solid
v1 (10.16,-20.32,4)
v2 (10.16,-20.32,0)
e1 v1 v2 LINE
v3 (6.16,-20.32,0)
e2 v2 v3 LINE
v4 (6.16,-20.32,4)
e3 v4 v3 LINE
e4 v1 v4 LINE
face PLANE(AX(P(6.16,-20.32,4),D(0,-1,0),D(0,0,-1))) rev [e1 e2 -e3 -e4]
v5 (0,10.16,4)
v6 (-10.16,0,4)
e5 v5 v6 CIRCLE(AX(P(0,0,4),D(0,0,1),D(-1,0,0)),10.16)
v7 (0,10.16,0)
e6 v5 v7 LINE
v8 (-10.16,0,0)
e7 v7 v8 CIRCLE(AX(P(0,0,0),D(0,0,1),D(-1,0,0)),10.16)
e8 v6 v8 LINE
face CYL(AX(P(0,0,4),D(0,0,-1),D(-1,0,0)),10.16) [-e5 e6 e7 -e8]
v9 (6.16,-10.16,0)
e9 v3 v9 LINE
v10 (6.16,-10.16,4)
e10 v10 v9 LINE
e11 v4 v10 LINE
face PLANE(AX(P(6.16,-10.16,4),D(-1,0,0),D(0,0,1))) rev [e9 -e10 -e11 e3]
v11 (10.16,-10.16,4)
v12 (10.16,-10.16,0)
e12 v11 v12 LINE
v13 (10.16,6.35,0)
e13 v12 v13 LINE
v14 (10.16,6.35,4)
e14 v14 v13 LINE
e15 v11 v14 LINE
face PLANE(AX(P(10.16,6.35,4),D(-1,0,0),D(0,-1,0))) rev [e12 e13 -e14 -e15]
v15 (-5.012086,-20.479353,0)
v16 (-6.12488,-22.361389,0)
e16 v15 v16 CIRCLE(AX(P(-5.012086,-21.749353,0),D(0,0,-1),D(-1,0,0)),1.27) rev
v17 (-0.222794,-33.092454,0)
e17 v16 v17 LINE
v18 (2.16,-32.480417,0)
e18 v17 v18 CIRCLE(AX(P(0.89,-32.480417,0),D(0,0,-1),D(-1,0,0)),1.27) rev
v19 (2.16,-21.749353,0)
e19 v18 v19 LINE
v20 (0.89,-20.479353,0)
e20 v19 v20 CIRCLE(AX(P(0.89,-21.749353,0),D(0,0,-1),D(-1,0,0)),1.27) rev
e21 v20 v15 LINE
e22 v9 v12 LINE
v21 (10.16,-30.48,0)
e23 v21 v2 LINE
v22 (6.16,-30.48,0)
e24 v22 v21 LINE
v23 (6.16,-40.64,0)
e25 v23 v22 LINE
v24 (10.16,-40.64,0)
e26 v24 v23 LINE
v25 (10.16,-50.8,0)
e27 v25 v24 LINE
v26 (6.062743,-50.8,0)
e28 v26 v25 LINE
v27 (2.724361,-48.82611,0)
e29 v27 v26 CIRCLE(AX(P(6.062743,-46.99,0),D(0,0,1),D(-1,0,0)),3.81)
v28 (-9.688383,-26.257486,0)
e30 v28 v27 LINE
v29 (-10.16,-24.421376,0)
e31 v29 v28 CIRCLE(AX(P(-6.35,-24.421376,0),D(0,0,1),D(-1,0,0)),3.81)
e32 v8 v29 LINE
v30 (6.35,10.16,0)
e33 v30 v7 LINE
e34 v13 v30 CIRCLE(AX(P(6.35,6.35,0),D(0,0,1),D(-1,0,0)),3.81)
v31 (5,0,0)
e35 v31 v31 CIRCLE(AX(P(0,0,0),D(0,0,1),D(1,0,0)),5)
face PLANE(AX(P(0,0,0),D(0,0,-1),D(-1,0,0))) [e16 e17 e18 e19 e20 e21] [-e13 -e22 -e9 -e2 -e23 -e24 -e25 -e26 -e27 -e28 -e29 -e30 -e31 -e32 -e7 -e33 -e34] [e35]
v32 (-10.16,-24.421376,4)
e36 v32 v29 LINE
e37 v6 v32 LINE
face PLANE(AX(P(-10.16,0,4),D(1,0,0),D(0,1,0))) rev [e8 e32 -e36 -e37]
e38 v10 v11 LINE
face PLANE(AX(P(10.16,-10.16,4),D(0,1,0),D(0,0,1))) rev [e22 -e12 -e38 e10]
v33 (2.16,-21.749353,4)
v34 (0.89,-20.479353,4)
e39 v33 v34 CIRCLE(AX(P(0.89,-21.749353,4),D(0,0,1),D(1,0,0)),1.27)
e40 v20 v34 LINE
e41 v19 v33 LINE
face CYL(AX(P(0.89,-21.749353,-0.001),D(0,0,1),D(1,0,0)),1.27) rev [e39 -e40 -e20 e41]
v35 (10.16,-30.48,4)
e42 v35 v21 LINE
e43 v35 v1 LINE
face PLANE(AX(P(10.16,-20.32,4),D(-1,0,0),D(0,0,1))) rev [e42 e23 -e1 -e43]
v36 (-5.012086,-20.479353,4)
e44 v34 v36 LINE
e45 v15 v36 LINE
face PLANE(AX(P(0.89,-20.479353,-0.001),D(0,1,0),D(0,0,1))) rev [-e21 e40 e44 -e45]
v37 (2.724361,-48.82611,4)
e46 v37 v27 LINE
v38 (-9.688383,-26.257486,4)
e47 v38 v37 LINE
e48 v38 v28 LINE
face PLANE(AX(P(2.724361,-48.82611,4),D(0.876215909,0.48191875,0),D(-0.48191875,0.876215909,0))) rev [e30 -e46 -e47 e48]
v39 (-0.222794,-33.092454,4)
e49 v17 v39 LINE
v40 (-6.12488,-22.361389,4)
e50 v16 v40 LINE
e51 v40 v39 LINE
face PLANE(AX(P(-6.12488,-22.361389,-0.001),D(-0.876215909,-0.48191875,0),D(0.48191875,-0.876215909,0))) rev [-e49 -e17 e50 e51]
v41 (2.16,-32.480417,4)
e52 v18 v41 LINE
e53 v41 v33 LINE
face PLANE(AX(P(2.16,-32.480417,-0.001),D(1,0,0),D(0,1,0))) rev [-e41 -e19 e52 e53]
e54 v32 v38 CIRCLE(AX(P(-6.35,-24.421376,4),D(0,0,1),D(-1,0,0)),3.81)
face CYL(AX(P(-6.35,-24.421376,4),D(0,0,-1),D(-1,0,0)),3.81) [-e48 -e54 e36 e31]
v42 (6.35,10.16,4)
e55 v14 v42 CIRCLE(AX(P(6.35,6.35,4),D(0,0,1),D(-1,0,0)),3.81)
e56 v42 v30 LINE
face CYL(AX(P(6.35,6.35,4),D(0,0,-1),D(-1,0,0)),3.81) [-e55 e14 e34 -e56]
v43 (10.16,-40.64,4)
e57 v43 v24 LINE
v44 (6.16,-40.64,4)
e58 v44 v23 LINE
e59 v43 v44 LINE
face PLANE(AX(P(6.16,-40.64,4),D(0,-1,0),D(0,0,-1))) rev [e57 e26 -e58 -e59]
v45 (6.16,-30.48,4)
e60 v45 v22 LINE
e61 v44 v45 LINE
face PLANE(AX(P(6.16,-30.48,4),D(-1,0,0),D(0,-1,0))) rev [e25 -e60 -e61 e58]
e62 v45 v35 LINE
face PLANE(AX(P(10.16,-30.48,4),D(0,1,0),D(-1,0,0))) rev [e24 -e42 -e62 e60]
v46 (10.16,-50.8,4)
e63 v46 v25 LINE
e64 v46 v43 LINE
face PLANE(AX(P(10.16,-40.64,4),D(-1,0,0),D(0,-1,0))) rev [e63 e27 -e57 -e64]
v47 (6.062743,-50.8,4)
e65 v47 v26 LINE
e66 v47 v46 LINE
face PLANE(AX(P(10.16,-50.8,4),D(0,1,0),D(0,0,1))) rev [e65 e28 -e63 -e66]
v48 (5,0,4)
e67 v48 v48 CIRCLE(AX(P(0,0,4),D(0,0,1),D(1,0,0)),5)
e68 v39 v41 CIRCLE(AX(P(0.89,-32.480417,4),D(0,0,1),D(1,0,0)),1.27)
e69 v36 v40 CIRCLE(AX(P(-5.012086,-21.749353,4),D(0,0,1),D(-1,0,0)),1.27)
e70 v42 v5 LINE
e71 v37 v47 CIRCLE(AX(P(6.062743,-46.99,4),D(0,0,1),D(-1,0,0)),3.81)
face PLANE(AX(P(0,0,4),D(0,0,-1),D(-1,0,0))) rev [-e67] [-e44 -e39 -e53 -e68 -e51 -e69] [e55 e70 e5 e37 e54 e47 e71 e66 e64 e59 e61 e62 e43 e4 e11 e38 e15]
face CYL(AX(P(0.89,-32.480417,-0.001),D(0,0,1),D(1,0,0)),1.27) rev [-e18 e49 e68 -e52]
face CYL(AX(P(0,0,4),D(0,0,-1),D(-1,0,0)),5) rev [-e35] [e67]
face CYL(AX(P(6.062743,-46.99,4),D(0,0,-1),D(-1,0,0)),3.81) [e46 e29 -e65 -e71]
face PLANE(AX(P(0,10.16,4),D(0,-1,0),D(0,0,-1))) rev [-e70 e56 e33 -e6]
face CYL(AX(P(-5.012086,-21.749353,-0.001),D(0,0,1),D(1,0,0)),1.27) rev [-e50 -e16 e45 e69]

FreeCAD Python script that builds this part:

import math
import FreeCAD as App
import Part
import Sketcher
Q = App.Units.Quantity

doc = App.newDocument("Part")
body = doc.addObject("PartDesign::Body", "Body")

sketch1 = body.newObject("Sketcher::SketchObject", "Sketch")
sketch1.AttachmentSupport = (doc.getObject("XY_Plane"), [""])
sketch1.MapMode = "FlatFace"
sketch1.addGeometry(Part.LineSegment(App.Vector(10.2, -10.2, 0), App.Vector(10.2, 6.3, 0)), False)
sketch1.addGeometry(Part.ArcOfCircle(Part.Circle(App.Vector(6.3, 6.3, 0), App.Vector(0, 0, 1), 3.8), math.radians(0), math.radians(90)), False)
sketch1.addGeometry(Part.LineSegment(App.Vector(6.3, 10.2, 0), App.Vector(0, 10.2, 0)), False)
sketch1.addGeometry(Part.ArcOfCircle(Part.Circle(App.Vector(0, 0, 0), App.Vector(0, 0, 1), 10.2), math.radians(90), math.radians(180)), False)
sketch1.addGeometry(Part.LineSegment(App.Vector(-10.2, 0, 0), App.Vector(-10.2, -24.4, 0)), False)
sketch1.addGeometry(Part.ArcOfCircle(Part.Circle(App.Vector(-6.4, -24.4, 0), App.Vector(0, 0, 1), 3.8), math.radians(180), math.radians(209)), False)
sketch1.addGeometry(Part.LineSegment(App.Vector(-9.7, -26.3, 0), App.Vector(2.7, -48.8, 0)), False)
sketch1.addGeometry(Part.ArcOfCircle(Part.Circle(App.Vector(6.1, -47, 0), App.Vector(0, 0, 1), 3.8), math.radians(-151), math.radians(-90)), False)
sketch1.addGeometry(Part.LineSegment(App.Vector(6.1, -50.8, 0), App.Vector(10.2, -50.8, 0)), False)
sketch1.addGeometry(Part.LineSegment(App.Vector(10.2, -50.8, 0), App.Vector(10.2, -40.6, 0)), False)
sketch1.addGeometry(Part.LineSegment(App.Vector(10.2, -40.6, 0), App.Vector(6.2, -40.6, 0)), False)
sketch1.addGeometry(Part.LineSegment(App.Vector(6.2, -40.6, 0), App.Vector(6.2, -30.5, 0)), False)
sketch1.addGeometry(Part.LineSegment(App.Vector(6.2, -30.5, 0), App.Vector(10.2, -30.5, 0)), False)
sketch1.addGeometry(Part.LineSegment(App.Vector(10.2, -30.5, 0), App.Vector(10.2, -20.3, 0)), False)
sketch1.addGeometry(Part.LineSegment(App.Vector(10.2, -20.3, 0), App.Vector(6.2, -20.3, 0)), False)
sketch1.addGeometry(Part.LineSegment(App.Vector(6.2, -20.3, 0), App.Vector(6.2, -10.2, 0)), False)
sketch1.addGeometry(Part.LineSegment(App.Vector(6.2, -10.2, 0), App.Vector(10.2, -10.2, 0)), False)
sketch1.addGeometry(Part.Circle(App.Vector(0, 0, 0), App.Vector(0, 0, 1), 5), False)
sketch1.addConstraint(Sketcher.Constraint("Tangent", 0, 2, 1, 1))
sketch1.addConstraint(Sketcher.Constraint("Tangent", 1, 2, 2, 1))
sketch1.addConstraint(Sketcher.Constraint("Tangent", 2, 2, 3, 1))
sketch1.addConstraint(Sketcher.Constraint("Tangent", 3, 2, 4, 1))
sketch1.addConstraint(Sketcher.Constraint("Tangent", 4, 2, 5, 1))
sketch1.addConstraint(Sketcher.Constraint("Tangent", 5, 2, 6, 1))
sketch1.addConstraint(Sketcher.Constraint("Tangent", 6, 2, 7, 1))
sketch1.addConstraint(Sketcher.Constraint("Tangent", 7, 2, 8, 1))
sketch1.addConstraint(Sketcher.Constraint("Coincident", 8, 2, 9, 1))
sketch1.addConstraint(Sketcher.Constraint("Coincident", 9, 2, 10, 1))
sketch1.addConstraint(Sketcher.Constraint("Coincident", 10, 2, 11, 1))
sketch1.addConstraint(Sketcher.Constraint("Coincident", 11, 2, 12, 1))
sketch1.addConstraint(Sketcher.Constraint("Coincident", 12, 2, 13, 1))
sketch1.addConstraint(Sketcher.Constraint("Coincident", 13, 2, 14, 1))
sketch1.addConstraint(Sketcher.Constraint("Coincident", 14, 2, 15, 1))
sketch1.addConstraint(Sketcher.Constraint("Coincident", 15, 2, 16, 1))
sketch1.addConstraint(Sketcher.Constraint("Coincident", 16, 2, 0, 1))
sketch1.addConstraint(Sketcher.Constraint("Vertical", 0))
sketch1.addConstraint(Sketcher.Constraint("Horizontal", 2))
sketch1.addConstraint(Sketcher.Constraint("Vertical", 4))
sketch1.addConstraint(Sketcher.Constraint("Horizontal", 8))
sketch1.addConstraint(Sketcher.Constraint("Vertical", 9))
sketch1.addConstraint(Sketcher.Constraint("Horizontal", 10))
sketch1.addConstraint(Sketcher.Constraint("Vertical", 11))
sketch1.addConstraint(Sketcher.Constraint("Horizontal", 12))
sketch1.addConstraint(Sketcher.Constraint("Vertical", 13))
sketch1.addConstraint(Sketcher.Constraint("Horizontal", 14))
sketch1.addConstraint(Sketcher.Constraint("Vertical", 15))
sketch1.addConstraint(Sketcher.Constraint("Horizontal", 16))
sketch1.addConstraint(Sketcher.Constraint("Coincident", 3, 3, -1, 1))
sketch1.addConstraint(Sketcher.Constraint("Coincident", 17, 3, -1, 1))
sketch1.addConstraint(Sketcher.Constraint("Equal", 1, 5))
sketch1.addConstraint(Sketcher.Constraint("Equal", 5, 7))
sketch1.addConstraint(Sketcher.Constraint("Vertical", 0, 2, 8, 2))
sketch1.addConstraint(Sketcher.Constraint("Vertical", 9, 2, 12, 2))
sketch1.addConstraint(Sketcher.Constraint("Vertical", 11, 2, 14, 2))
sketch1.addConstraint(Sketcher.Constraint("Equal", 9, 11))
sketch1.addConstraint(Sketcher.Constraint("Equal", 11, 13))
sketch1.addConstraint(Sketcher.Constraint("Equal", 13, 15))
sketch1.addConstraint(Sketcher.Constraint("Radius", 3, Q("0.4 in")))
sketch1.addConstraint(Sketcher.Constraint("Radius", 1, Q("0.15 in")))
sketch1.addConstraint(Sketcher.Constraint("DistanceY", 9, 1, 9, 2, Q("0.4 in")))
sketch1.addConstraint(Sketcher.Constraint("DistanceY", 7, 2, -1, 1, Q("2 in")))
sketch1.addConstraint(Sketcher.Constraint("DistanceX", 2, 2, 2, 1, Q("0.25 in")))
sketch1.addConstraint(Sketcher.Constraint("Diameter", 17, Q("10 mm")))
sketch1.addConstraint(Sketcher.Constraint("DistanceX", 10, 2, 10, 1, Q("4 mm")))
sketch1.addConstraint(Sketcher.Constraint("Distance", 6, Q("25.756921 mm")))
sketch1.addConstraint(Sketcher.Constraint("DistanceX", 8, 1, 8, 2, Q("4.097257 mm")))
pad1 = body.newObject("PartDesign::Pad", "Pad")
pad1.Profile = sketch1
pad1.Length = 4

sketch2 = body.newObject("Sketcher::SketchObject", "Sketch001")
sketch2.AttachmentSupport = (doc.getObject("XY_Plane"), [""])
sketch2.MapMode = "FlatFace"
sketch2.AttachmentOffset = App.Placement(App.Vector(0, 0, 4), App.Rotation())
sketch2.addGeometry(Part.LineSegment(App.Vector(-6.1, -22.4, 0), App.Vector(-0.2, -33.1, 0)), False)
sketch2.addGeometry(Part.ArcOfCircle(Part.Circle(App.Vector(0.9, -32.5, 0), App.Vector(0, 0, 1), 1.3), math.radians(-151), math.radians(0)), False)
sketch2.addGeometry(Part.LineSegment(App.Vector(2.2, -32.5, 0), App.Vector(2.2, -21.7, 0)), False)
sketch2.addGeometry(Part.ArcOfCircle(Part.Circle(App.Vector(0.9, -21.7, 0), App.Vector(0, 0, 1), 1.3), math.radians(0), math.radians(90)), False)
sketch2.addGeometry(Part.LineSegment(App.Vector(0.9, -20.5, 0), App.Vector(-5, -20.5, 0)), False)
sketch2.addGeometry(Part.ArcOfCircle(Part.Circle(App.Vector(-5, -21.7, 0), App.Vector(0, 0, 1), 1.3), math.radians(90), math.radians(209)), False)
sketch2.addConstraint(Sketcher.Constraint("Tangent", 0, 2, 1, 1))
sketch2.addConstraint(Sketcher.Constraint("Tangent", 1, 2, 2, 1))
sketch2.addConstraint(Sketcher.Constraint("Tangent", 2, 2, 3, 1))
sketch2.addConstraint(Sketcher.Constraint("Tangent", 3, 2, 4, 1))
sketch2.addConstraint(Sketcher.Constraint("Tangent", 4, 2, 5, 1))
sketch2.addConstraint(Sketcher.Constraint("Tangent", 5, 2, 0, 1))
sketch2.addConstraint(Sketcher.Constraint("Vertical", 2))
sketch2.addConstraint(Sketcher.Constraint("Horizontal", 4))
sketch2.addConstraint(Sketcher.Constraint("Equal", 1, 3))
sketch2.addConstraint(Sketcher.Constraint("Equal", 3, 5))
sketch2.addConstraint(Sketcher.Constraint("Radius", 1, Q("0.05 in")))
sketch2.addConstraint(Sketcher.Constraint("DistanceX", -1, 1, 1, 3, Q("0.89 mm")))
sketch2.addConstraint(Sketcher.Constraint("DistanceY", 0, 2, 3, 3, Q("11.343101 mm")))
sketch2.addConstraint(Sketcher.Constraint("DistanceX", 4, 2, 4, 1, Q("5.902086 mm")))
sketch2.addConstraint(Sketcher.Constraint("DistanceY", 5, 2, -1, 1, Q("22.361389 mm")))
pocket1 = body.newObject("PartDesign::Pocket", "Pocket")
pocket1.Profile = sketch2
pocket1.Type = "UpToFirst"

doc.recompute()
